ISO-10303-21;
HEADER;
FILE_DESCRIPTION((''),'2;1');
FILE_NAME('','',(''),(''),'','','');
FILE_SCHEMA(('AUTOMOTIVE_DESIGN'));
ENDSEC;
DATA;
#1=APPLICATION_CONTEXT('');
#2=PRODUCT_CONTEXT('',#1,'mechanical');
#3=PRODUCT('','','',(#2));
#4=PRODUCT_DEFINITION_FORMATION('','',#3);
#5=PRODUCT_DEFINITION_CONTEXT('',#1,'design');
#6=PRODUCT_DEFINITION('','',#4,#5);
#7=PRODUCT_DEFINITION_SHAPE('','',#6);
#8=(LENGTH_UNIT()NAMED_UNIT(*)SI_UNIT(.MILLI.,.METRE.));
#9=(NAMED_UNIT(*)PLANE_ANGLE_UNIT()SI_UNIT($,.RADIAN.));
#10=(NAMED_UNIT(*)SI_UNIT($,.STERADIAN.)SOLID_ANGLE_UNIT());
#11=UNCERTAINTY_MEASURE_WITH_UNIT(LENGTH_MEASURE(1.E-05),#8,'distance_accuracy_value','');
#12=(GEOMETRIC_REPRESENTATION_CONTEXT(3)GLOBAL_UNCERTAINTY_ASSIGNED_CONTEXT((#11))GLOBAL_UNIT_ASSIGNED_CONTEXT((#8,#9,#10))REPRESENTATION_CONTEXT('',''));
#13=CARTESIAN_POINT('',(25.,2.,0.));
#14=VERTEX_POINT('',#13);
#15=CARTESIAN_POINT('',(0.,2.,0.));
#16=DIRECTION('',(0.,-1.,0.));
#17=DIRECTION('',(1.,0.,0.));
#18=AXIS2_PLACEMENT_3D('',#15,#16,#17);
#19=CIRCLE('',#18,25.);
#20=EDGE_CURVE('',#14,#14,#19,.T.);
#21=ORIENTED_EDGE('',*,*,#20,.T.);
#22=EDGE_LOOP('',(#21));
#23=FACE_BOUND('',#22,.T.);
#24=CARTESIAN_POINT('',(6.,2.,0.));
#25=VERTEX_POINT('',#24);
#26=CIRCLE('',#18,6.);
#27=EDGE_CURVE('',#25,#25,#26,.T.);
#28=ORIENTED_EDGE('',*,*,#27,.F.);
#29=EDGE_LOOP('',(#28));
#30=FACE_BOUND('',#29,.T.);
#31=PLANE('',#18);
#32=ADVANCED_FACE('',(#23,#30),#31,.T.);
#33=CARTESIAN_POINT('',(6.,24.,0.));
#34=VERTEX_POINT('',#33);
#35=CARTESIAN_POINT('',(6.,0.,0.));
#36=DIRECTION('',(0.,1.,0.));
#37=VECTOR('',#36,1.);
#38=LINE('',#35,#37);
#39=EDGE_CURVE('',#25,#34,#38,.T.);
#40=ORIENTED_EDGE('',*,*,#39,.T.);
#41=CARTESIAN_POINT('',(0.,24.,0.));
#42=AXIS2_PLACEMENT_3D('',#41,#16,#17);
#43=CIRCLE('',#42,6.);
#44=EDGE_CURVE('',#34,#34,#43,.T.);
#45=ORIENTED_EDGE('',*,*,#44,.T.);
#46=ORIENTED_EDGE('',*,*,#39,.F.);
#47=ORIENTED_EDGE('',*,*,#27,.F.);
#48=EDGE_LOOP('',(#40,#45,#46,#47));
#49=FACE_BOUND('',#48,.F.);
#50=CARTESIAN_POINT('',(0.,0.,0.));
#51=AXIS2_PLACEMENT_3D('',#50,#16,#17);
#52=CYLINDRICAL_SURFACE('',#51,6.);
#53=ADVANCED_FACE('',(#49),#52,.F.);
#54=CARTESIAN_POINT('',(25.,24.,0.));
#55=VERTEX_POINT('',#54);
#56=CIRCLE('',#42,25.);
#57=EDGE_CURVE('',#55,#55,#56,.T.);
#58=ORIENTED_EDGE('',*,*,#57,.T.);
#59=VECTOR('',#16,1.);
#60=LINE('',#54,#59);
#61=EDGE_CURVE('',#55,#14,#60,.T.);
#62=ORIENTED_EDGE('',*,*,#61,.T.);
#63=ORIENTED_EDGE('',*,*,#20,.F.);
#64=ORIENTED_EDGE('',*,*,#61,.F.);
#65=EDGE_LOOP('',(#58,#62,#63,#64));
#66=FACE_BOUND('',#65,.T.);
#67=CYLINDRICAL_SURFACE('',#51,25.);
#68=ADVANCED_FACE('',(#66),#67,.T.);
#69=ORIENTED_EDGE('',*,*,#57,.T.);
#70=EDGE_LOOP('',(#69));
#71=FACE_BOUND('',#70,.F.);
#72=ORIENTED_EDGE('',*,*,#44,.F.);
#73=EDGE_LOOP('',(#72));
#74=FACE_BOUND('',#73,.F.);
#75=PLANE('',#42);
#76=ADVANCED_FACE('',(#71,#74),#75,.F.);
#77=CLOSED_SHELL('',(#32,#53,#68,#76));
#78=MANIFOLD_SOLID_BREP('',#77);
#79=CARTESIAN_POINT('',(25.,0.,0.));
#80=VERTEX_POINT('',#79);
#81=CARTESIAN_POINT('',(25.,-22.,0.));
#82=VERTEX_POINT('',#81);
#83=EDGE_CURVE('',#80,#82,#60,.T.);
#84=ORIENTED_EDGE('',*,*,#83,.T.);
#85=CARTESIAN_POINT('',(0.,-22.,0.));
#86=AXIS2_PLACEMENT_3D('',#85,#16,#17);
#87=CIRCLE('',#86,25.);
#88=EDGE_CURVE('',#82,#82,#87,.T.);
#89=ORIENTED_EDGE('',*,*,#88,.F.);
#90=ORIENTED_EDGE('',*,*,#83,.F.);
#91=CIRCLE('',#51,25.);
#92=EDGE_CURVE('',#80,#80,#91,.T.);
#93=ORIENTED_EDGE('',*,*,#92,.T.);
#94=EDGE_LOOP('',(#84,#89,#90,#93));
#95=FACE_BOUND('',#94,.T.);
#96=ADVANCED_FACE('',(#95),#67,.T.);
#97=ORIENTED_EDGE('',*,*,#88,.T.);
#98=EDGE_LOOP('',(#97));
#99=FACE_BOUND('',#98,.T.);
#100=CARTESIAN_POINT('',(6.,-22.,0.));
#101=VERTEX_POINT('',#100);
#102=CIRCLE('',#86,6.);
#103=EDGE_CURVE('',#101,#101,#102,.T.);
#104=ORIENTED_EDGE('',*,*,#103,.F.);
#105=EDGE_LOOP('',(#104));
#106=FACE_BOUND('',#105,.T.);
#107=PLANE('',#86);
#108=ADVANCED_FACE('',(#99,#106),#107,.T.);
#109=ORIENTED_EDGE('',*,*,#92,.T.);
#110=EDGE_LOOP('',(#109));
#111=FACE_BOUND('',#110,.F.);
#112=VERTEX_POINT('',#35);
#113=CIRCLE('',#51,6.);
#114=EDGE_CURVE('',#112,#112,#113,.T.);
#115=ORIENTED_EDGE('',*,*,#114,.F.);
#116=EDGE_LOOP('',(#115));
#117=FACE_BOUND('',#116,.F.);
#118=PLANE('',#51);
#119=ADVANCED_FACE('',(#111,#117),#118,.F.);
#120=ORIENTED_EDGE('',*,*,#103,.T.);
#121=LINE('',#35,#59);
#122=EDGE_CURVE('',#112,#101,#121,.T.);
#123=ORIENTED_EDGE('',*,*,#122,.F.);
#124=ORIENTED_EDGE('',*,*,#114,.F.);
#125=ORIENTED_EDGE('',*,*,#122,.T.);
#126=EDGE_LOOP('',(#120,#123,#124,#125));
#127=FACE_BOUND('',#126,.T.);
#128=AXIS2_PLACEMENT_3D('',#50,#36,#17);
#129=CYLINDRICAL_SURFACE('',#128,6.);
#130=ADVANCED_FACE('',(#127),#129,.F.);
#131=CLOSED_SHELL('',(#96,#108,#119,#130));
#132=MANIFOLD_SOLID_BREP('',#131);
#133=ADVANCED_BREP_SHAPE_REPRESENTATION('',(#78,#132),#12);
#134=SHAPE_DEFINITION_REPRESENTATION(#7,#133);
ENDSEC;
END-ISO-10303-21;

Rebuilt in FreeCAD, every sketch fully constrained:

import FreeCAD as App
import Part
import Sketcher
Q = App.Units.Quantity

doc = App.newDocument("Part")
body = doc.addObject("PartDesign::Body", "Body")
body.AllowCompound = True

# Sketch on XZ plane
sketch1 = doc.addObject("Sketcher::SketchObject", "Sketch")
body.addObject(sketch1)
sketch1.AttachmentSupport = (doc.XZ_Plane, [""])
sketch1.MapMode = "FlatFace"
sketch1.addGeometry([
    Part.Circle(App.Vector(0, 0, 0), App.Vector(0, 0, 1), 25),
    Part.Circle(App.Vector(0, 0, 0), App.Vector(0, 0, 1), 6),
], False)
sketch1.addConstraint([
    Sketcher.Constraint("Coincident", 0, 3, -1, 1),
    Sketcher.Constraint("Coincident", 1, 3, -1, 1),
    Sketcher.Constraint("Diameter", 0, Q("50 mm")),
    Sketcher.Constraint("Diameter", 1, Q("12 mm")),
])
pad1 = doc.addObject("PartDesign::Pad", "Pad")
body.addObject(pad1)
pad1.Profile = sketch1
pad1.Type = "TwoLengths"
pad1.Length = 22
pad1.Length2 = 24

# Sketch on XZ plane
sketch2 = doc.addObject("Sketcher::SketchObject", "Sketch001")
body.addObject(sketch2)
sketch2.AttachmentSupport = (doc.XZ_Plane, [""])
sketch2.MapMode = "FlatFace"
sketch2.addGeometry([
    Part.Circle(App.Vector(0, 0, 0), App.Vector(0, 0, 1), 25),
    Part.Circle(App.Vector(0, 0, 0), App.Vector(0, 0, 1), 6),
], False)
sketch2.addConstraint([
    Sketcher.Constraint("Coincident", 0, 3, -1, 1),
    Sketcher.Constraint("Coincident", 1, 3, -1, 1),
    Sketcher.Constraint("Diameter", 0, Q("50 mm")),
    Sketcher.Constraint("Diameter", 1, Q("12 mm")),
])
pocket1 = doc.addObject("PartDesign::Pocket", "Pocket")
body.addObject(pocket1)
pocket1.Profile = sketch2
pocket1.Length = 2

doc.recompute()
